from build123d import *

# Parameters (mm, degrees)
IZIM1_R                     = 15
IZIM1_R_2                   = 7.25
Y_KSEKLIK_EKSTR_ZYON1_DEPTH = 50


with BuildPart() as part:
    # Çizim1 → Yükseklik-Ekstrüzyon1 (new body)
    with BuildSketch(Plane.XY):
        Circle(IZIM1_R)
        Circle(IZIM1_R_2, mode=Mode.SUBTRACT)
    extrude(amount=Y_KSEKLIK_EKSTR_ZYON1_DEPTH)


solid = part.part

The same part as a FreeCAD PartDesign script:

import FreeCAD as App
import Part
import Sketcher

doc = App.newDocument("Part")
body = doc.addObject("PartDesign::Body", "Body")

sketch1 = body.newObject("Sketcher::SketchObject", "Sketch")
sketch1.AttachmentSupport = (doc.getObject("XY_Plane"), [""])
sketch1.MapMode = "FlatFace"
sketch1.addGeometry([
    Part.Circle(App.Vector(0, 0, 0), App.Vector(0, 0, 1), 15),
    Part.Circle(App.Vector(0, 0, 0), App.Vector(0, 0, 1), 7.25),
], False)
sketch1.addConstraint([
    Sketcher.Constraint("Coincident", 0, 3, -1, 1),
    Sketcher.Constraint("Coincident", 1, 3, -1, 1),
    Sketcher.Constraint("Diameter", 0, 30.0),
    Sketcher.Constraint("Diameter", 1, 14.5),
])
pad1 = body.newObject("PartDesign::Pad", "Pad")
pad1.Profile = sketch1
pad1.Length = 50

doc.recompute()
